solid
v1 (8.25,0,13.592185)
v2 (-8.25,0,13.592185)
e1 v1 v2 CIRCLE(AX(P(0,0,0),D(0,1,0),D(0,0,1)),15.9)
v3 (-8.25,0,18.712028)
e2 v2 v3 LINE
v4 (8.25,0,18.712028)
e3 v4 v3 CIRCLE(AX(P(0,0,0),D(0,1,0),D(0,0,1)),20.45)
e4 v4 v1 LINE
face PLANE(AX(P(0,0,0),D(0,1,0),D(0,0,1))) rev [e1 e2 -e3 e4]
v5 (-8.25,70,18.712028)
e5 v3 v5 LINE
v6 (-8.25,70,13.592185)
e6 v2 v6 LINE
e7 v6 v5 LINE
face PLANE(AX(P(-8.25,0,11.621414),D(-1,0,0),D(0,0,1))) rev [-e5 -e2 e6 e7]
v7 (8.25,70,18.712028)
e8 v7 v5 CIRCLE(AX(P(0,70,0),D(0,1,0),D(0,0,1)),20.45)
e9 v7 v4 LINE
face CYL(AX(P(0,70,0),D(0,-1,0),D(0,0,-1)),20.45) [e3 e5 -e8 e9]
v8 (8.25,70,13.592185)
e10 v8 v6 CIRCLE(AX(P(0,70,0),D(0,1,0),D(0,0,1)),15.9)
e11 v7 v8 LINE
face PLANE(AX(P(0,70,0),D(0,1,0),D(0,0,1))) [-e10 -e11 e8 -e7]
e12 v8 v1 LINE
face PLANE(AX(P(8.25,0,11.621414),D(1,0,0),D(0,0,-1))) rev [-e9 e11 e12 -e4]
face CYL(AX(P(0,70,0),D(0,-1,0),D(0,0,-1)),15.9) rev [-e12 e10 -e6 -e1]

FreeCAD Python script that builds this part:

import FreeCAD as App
import Part
import Sketcher
from FreeCAD import Vector
Q = App.Units.Quantity


def add_polygon(sketch, points):
    """Adds a closed chain of lines whose ends are joined by coincident constraints."""
    first, n = sketch.GeometryCount, len(points)
    for a, b in zip(points, points[1:] + points[:1]):
        sketch.addGeometry(Part.LineSegment(App.Vector(*a, 0), App.Vector(*b, 0)), False)
    for i in range(n):
        sketch.addConstraint(Sketcher.Constraint("Coincident", first + i, 2, first + (i + 1) % n, 1))

doc = App.newDocument("Part")
body = doc.addObject("PartDesign::Body", "Body")

# Sketch on XZ plane
sketch1 = body.newObject("Sketcher::SketchObject", "Sketch")
sketch1.AttachmentSupport = (doc.getObject("XZ_Plane"), [""])
sketch1.MapMode = "FlatFace"
sketch1.addGeometry([
    Part.Circle(Vector(0, 0, 0), Vector(0, 0, 1), 20),
    Part.Circle(Vector(0, 0, 0), Vector(0, 0, 1), 16),
], False)
sketch1.addConstraint([
    Sketcher.Constraint("Coincident", 0, 3, -1, 1),
    Sketcher.Constraint("Coincident", 1, 3, -1, 1),
    Sketcher.Constraint("Diameter", 0, Q("40.9 mm")),
    Sketcher.Constraint("Diameter", 1, Q("31.8 mm")),
])
pad1 = body.newObject("PartDesign::Pad", "Pad")
pad1.Profile = sketch1
pad1.Length = 70
pad1.Reversed = True

# Sketch on XZ plane
sketch2 = body.newObject("Sketcher::SketchObject", "Sketch001")
sketch2.AttachmentSupport = (doc.getObject("XZ_Plane"), [""])
sketch2.MapMode = "FlatFace"
sketch2.AttachmentOffset = App.Placement(Vector(0, 0, -70), App.Rotation())
add_polygon(sketch2, [(-8, 12), (-8, 22), (8, 22), (8, 12)])  # lines 0-3
sketch2.addConstraint([
    Sketcher.Constraint("Vertical", 0),
    Sketcher.Constraint("Horizontal", 1),
    Sketcher.Constraint("Vertical", 2),
    Sketcher.Constraint("Horizontal", 3),
    Sketcher.Constraint("DistanceX", 1, 1, 1, 2, Q("16.5 mm")),
    Sketcher.Constraint("DistanceX", 0, 2, -1, 1, Q("8.25 mm")),
    Sketcher.Constraint("DistanceY", 0, 1, 0, 2, Q("10.294768 mm")),
    Sketcher.Constraint("DistanceY", -1, 1, 0, 2, Q("21.916182 mm")),
])
pocket1 = body.newObject("PartDesign::Pocket", "Pocket")
pocket1.Profile = sketch2
pocket1.Type = "ThroughAll"
pocket1.Reversed = True

doc.recompute()
